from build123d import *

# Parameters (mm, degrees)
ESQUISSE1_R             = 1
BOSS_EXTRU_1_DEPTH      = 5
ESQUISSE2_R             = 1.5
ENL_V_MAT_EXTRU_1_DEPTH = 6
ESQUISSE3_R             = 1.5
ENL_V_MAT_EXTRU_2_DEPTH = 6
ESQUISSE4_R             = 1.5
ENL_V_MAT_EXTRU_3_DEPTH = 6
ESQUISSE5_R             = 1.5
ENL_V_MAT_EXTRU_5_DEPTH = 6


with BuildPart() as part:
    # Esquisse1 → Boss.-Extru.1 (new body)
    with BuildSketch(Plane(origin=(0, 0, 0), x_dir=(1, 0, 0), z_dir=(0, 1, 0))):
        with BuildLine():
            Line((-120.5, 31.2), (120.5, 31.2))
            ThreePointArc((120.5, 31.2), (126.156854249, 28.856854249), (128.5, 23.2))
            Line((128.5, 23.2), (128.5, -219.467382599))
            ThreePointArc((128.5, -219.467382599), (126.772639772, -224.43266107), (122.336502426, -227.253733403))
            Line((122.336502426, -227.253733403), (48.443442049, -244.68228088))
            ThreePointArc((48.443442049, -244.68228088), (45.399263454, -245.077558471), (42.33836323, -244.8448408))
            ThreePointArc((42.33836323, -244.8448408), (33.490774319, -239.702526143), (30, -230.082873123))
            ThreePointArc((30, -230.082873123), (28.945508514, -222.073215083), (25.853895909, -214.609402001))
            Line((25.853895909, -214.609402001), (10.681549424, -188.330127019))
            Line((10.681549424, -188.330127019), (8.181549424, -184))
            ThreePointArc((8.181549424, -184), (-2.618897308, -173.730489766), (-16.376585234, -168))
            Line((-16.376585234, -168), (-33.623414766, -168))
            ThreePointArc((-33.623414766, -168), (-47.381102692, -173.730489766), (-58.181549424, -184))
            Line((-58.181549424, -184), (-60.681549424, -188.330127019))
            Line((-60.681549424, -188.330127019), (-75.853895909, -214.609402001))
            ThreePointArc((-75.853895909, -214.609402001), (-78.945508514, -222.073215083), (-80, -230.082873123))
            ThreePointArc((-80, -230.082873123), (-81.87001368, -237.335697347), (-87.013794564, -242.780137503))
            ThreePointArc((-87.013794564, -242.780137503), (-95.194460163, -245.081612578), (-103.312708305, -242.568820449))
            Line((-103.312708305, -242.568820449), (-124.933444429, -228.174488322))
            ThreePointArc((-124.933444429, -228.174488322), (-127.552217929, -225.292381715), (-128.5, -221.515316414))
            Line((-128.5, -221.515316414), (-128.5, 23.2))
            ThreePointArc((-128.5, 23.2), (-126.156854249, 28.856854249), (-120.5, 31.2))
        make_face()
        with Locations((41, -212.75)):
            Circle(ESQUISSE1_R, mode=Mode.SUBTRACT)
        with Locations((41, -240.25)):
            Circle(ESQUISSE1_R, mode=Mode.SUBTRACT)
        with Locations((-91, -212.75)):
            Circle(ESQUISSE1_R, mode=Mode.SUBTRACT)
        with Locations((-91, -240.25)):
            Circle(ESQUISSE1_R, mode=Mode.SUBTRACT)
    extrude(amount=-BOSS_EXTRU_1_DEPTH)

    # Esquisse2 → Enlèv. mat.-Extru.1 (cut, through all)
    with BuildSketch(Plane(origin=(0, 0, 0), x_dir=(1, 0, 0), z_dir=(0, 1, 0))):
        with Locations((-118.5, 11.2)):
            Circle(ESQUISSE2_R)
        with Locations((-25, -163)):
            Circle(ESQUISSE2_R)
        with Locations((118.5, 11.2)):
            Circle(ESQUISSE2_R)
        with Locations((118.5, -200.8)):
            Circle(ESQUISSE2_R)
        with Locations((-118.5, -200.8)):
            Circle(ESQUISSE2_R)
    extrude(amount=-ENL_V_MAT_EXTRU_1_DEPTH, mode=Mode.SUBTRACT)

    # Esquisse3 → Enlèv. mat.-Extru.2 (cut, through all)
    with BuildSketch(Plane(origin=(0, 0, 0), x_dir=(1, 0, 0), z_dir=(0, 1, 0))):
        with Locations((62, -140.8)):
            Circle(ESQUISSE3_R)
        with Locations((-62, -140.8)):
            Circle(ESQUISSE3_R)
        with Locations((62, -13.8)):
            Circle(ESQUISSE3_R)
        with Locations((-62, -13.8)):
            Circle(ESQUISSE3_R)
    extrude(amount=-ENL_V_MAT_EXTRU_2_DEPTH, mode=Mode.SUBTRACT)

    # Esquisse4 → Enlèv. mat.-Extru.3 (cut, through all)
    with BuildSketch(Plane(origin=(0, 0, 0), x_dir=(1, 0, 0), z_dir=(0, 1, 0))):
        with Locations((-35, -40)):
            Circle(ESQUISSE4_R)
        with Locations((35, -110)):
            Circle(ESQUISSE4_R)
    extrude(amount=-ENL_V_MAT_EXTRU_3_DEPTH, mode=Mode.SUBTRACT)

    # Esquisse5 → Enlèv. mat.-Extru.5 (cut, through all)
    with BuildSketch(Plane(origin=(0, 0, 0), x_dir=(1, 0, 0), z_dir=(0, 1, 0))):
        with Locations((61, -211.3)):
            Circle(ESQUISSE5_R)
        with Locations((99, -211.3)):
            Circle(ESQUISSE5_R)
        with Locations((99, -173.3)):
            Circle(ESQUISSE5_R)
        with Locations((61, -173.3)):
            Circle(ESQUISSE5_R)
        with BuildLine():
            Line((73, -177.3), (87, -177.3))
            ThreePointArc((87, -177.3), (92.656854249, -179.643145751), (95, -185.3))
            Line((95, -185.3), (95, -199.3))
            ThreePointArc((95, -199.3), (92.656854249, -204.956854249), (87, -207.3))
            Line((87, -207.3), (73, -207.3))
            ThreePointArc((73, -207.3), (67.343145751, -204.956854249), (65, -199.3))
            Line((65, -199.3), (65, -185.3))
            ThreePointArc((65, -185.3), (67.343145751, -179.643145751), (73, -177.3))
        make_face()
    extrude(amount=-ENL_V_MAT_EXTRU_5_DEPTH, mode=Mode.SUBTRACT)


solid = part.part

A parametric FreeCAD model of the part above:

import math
import FreeCAD as App
import Part
import Sketcher

V = App.Vector
Q = App.Units.Quantity

doc = App.newDocument("Part")
params = doc.addObject("Spreadsheet::Sheet", "Params")
for row, (alias, value) in enumerate([
    ("sketch1_diameter", "2 mm"),
    ("sketch1_radius", "8 mm"),
    ("sketch1_radius2", "15 mm"),
    ("sketch1_radius3", "41 mm"),
    ("sketch1_width", "241 mm"),
    ("pad1_length", "5 mm"),
    ("sketch2_diameter", "3 mm"),
    ("sketch3_diameter", "3 mm"),
    ("sketch4_diameter", "3 mm"),
    ("sketch5_diameter", "3 mm"),
    ("sketch5_radius", "8 mm"),
    ("sketch5_width", "14 mm"),
], start=1):
    params.set(f"A{row}", alias)
    params.set(f"B{row}", "=" + value)
    params.setAlias(f"B{row}", alias)

body = doc.addObject("PartDesign::Body", "Body")

# Sketch on XZ plane
sketch1 = body.newObject("Sketcher::SketchObject", "Sketch")
sketch1.AttachmentSupport = (doc.getObject("XZ_Plane"), [""])
sketch1.MapMode = "FlatFace"
sketch1.addGeometry(Part.LineSegment(V(120.5, -31.2, 0), V(-120.5, -31.2, 0)), False)
sketch1.addGeometry(Part.ArcOfCircle(Part.Circle(V(-120.5, -23.2, 0), V(0, 0, 1), 8), math.radians(-180), math.radians(-90)), False)
sketch1.addGeometry(Part.LineSegment(V(-128.5, -23.2, 0), V(-128.5, 221.515316, 0)), False)
sketch1.addGeometry(Part.ArcOfCircle(Part.Circle(V(-120.5, 221.515316, 0), V(0, 0, 1), 8), math.radians(123.654292), math.radians(180)), False)
sketch1.addGeometry(Part.LineSegment(V(-124.933444, 228.174488, 0), V(-103.312708, 242.56882, 0)), False)
sketch1.addGeometry(Part.ArcOfCircle(Part.Circle(V(-95, 230.082873, 0), V(0, 0, 1), 15), math.radians(57.831316), math.radians(123.654292)), False)
sketch1.addGeometry(Part.ArcOfCircle(Part.Circle(V(-95, 230.082873, 0), V(0, 0, 1), 15), math.radians(0), math.radians(57.831316)), False)
sketch1.addGeometry(Part.ArcOfCircle(Part.Circle(V(-49.053058, 230.082873, 0), V(0, 0, 1), 30.946942), math.radians(-180), math.radians(-150)), False)
sketch1.addGeometry(Part.LineSegment(V(-75.853896, 214.609402, 0), V(-60.681549, 188.330127, 0)), False)
sketch1.addGeometry(Part.LineSegment(V(-60.681549, 188.330127, 0), V(-58.181549, 184, 0)), False)
sketch1.addGeometry(Part.ArcOfCircle(Part.Circle(V(-25, 208.082873, 0), V(0, 0, 1), 41), math.radians(-144.028189), math.radians(-102.141527)), False)
sketch1.addGeometry(Part.LineSegment(V(-33.623415, 168, 0), V(-16.376585, 168, 0)), False)
sketch1.addGeometry(Part.ArcOfCircle(Part.Circle(V(-25, 208.082873, 0), V(0, 0, 1), 41), math.radians(-77.858473), math.radians(-35.971811)), False)
sketch1.addGeometry(Part.LineSegment(V(8.181549, 184, 0), V(10.681549, 188.330127, 0)), False)
sketch1.addGeometry(Part.LineSegment(V(10.681549, 188.330127, 0), V(25.853896, 214.609402, 0)), False)
sketch1.addGeometry(Part.ArcOfCircle(Part.Circle(V(-0.946942, 230.082873, 0), V(0, 0, 1), 30.946942), math.radians(-30), math.radians(0)), False)
sketch1.addGeometry(Part.ArcOfCircle(Part.Circle(V(45, 230.082873, 0), V(0, 0, 1), 15), math.radians(100.220825), math.radians(180)), False)
sketch1.addGeometry(Part.ArcOfCircle(Part.Circle(V(45, 230.082873, 0), V(0, 0, 1), 15), math.radians(76.728666), math.radians(100.220825)), False)
sketch1.addGeometry(Part.LineSegment(V(48.443442, 244.682281, 0), V(122.336502, 227.253733, 0)), False)
sketch1.addGeometry(Part.ArcOfCircle(Part.Circle(V(120.5, 219.467383, 0), V(0, 0, 1), 8), math.radians(0), math.radians(76.728666)), False)
sketch1.addGeometry(Part.LineSegment(V(128.5, 219.467383, 0), V(128.5, -23.2, 0)), False)
sketch1.addGeometry(Part.ArcOfCircle(Part.Circle(V(120.5, -23.2, 0), V(0, 0, 1), 8), math.radians(-90), math.radians(0)), False)
sketch1.addGeometry(Part.Circle(V(41, 240.25, 0), V(0, 0, 1), 1), False)
sketch1.addGeometry(Part.Circle(V(-91, 240.25, 0), V(0, 0, 1), 1), False)
sketch1.addGeometry(Part.Circle(V(41, 212.75, 0), V(0, 0, 1), 1), False)
sketch1.addGeometry(Part.Circle(V(-91, 212.75, 0), V(0, 0, 1), 1), False)
sketch1.addConstraint(Sketcher.Constraint("Tangent", 0, 2, 1, 2))
sketch1.addConstraint(Sketcher.Constraint("Tangent", 1, 1, 2, 1))
sketch1.addConstraint(Sketcher.Constraint("Tangent", 2, 2, 3, 2))
sketch1.addConstraint(Sketcher.Constraint("Tangent", 3, 1, 4, 1))
sketch1.addConstraint(Sketcher.Constraint("Tangent", 4, 2, 5, 2))
sketch1.addConstraint(Sketcher.Constraint("Tangent", 5, 1, 6, 2))
sketch1.addConstraint(Sketcher.Constraint("Tangent", 6, 1, 7, 1))
sketch1.addConstraint(Sketcher.Constraint("Tangent", 7, 2, 8, 1))
sketch1.addConstraint(Sketcher.Constraint("Coincident", 8, 2, 9, 1))
sketch1.addConstraint(Sketcher.Constraint("Coincident", 9, 2, 10, 1))
sketch1.addConstraint(Sketcher.Constraint("Coincident", 10, 2, 11, 1))
sketch1.addConstraint(Sketcher.Constraint("Coincident", 11, 2, 12, 1))
sketch1.addConstraint(Sketcher.Constraint("Coincident", 12, 2, 13, 1))
sketch1.addConstraint(Sketcher.Constraint("Coincident", 13, 2, 14, 1))
sketch1.addConstraint(Sketcher.Constraint("Tangent", 14, 2, 15, 1))
sketch1.addConstraint(Sketcher.Constraint("Tangent", 15, 2, 16, 2))
sketch1.addConstraint(Sketcher.Constraint("Tangent", 16, 1, 17, 2))
sketch1.addConstraint(Sketcher.Constraint("Tangent", 17, 1, 18, 1))
sketch1.addConstraint(Sketcher.Constraint("Tangent", 18, 2, 19, 2))
sketch1.addConstraint(Sketcher.Constraint("Tangent", 19, 1, 20, 1))
sketch1.addConstraint(Sketcher.Constraint("Tangent", 20, 2, 21, 2))
sketch1.addConstraint(Sketcher.Constraint("Tangent", 21, 1, 0, 1))
sketch1.addConstraint(Sketcher.Constraint("Horizontal", 0))
sketch1.addConstraint(Sketcher.Constraint("Vertical", 2))
sketch1.addConstraint(Sketcher.Constraint("Horizontal", 11))
sketch1.addConstraint(Sketcher.Constraint("Vertical", 20))
sketch1.addConstraint(Sketcher.Constraint("Coincident", 12, 3, 10, 3))
sketch1.addConstraint(Sketcher.Constraint("Equal", 1, 3))
sketch1.addConstraint(Sketcher.Constraint("Equal", 5, 6))
sketch1.addConstraint(Sketcher.Constraint("Equal", 10, 12))
sketch1.addConstraint(Sketcher.Constraint("Equal", 7, 15))
sketch1.addConstraint(Sketcher.Constraint("Equal", 6, 16))
sketch1.addConstraint(Sketcher.Constraint("Equal", 16, 17))
sketch1.addConstraint(Sketcher.Constraint("Equal", 3, 19))
sketch1.addConstraint(Sketcher.Constraint("Equal", 19, 21))
sketch1.addConstraint(Sketcher.Constraint("Equal", 22, 23))
sketch1.addConstraint(Sketcher.Constraint("Equal", 23, 24))
sketch1.addConstraint(Sketcher.Constraint("Equal", 24, 25))
sketch1.addConstraint(Sketcher.Constraint("Parallel", 8, 9))
sketch1.addConstraint(Sketcher.Constraint("Parallel", 13, 14))
sketch1.addConstraint(Sketcher.Constraint("Horizontal", 6, 3, 7, 3))
sketch1.addConstraint(Sketcher.Constraint("Horizontal", 7, 3, 15, 3))
sketch1.addConstraint(Sketcher.Constraint("Horizontal", 15, 3, 16, 3))
sketch1.addConstraint(Sketcher.Constraint("Horizontal", 22, 3, 23, 3))
sketch1.addConstraint(Sketcher.Constraint("Horizontal", 24, 3, 25, 3))
sketch1.addConstraint(Sketcher.Constraint("Horizontal", 9, 2, 12, 2))
sketch1.addConstraint(Sketcher.Constraint("Horizontal", 8, 2, 13, 2))
sketch1.addConstraint(Sketcher.Constraint("Horizontal", 7, 2, 14, 2))
sketch1.addConstraint(Sketcher.Constraint("Vertical", 22, 3, 24, 3))
sketch1.addConstraint(Sketcher.Constraint("Vertical", 23, 3, 25, 3))
sketch1.addConstraint(Sketcher.Constraint("Diameter", 22, Q("2 mm")))
sketch1.addConstraint(Sketcher.Constraint("Radius", 1, Q("8 mm")))
sketch1.addConstraint(Sketcher.Constraint("Radius", 5, Q("15 mm")))
sketch1.addConstraint(Sketcher.Constraint("Radius", 10, Q("41 mm")))
sketch1.addConstraint(Sketcher.Constraint("DistanceX", 0, 2, 0, 1, Q("241 mm")))
sketch1.addConstraint(Sketcher.Constraint("Angle", 8, Q("-60 deg")))
sketch1.addConstraint(Sketcher.Constraint("Distance", 9, Q("5 mm")))
sketch1.addConstraint(Sketcher.Constraint("DistanceX", 5, 3, -1, 1, Q("95 mm")))
sketch1.addConstraint(Sketcher.Constraint("DistanceX", 10, 3, -1, 1, Q("25 mm")))
sketch1.addConstraint(Sketcher.Constraint("DistanceX", -1, 1, 22, 3, Q("41 mm")))
sketch1.addConstraint(Sketcher.Constraint("DistanceX", 23, 3, -1, 1, Q("91 mm")))
sketch1.addConstraint(Sketcher.Constraint("DistanceY", -1, 1, 9, 2, Q("184 mm")))
sketch1.addConstraint(Sketcher.Constraint("DistanceY", -1, 1, 10, 2, Q("168 mm")))
sketch1.addConstraint(Sketcher.Constraint("DistanceY", 10, 3, 7, 3, Q("22 mm")))
sketch1.addConstraint(Sketcher.Constraint("DistanceX", 1, 3, -1, 1, Q("120.5 mm")))
sketch1.addConstraint(Sketcher.Constraint("DistanceY", 1, 3, -1, 1, Q("23.2 mm")))
sketch1.addConstraint(Sketcher.Constraint("DistanceY", 24, 3, 22, 3, Q("27.5 mm")))
sketch1.addConstraint(Sketcher.Constraint("DistanceY", -1, 1, 22, 3, Q("240.25 mm")))
sketch1.addConstraint(Sketcher.Constraint("Radius", 7, Q("30.946942 mm")))
sketch1.addConstraint(Sketcher.Constraint("DistanceY", 19, 1, 17, 1, Q("25.214898 mm")))
sketch1.addConstraint(Sketcher.Constraint("DistanceY", 2, 1, 2, 2, Q("244.715316 mm")))
sketch1.addConstraint(Sketcher.Constraint("DistanceY", -1, 1, 16, 1, Q("244.844841 mm")))
sketch1.addConstraint(Sketcher.Constraint("DistanceX", 5, 1, -1, 1, Q("87.013795 mm")))
sketch1.setExpression("Constraints[50]", "Params.sketch1_diameter")
sketch1.setExpression("Constraints[51]", "Params.sketch1_radius")
sketch1.setExpression("Constraints[52]", "Params.sketch1_radius2")
sketch1.setExpression("Constraints[53]", "Params.sketch1_radius3")
sketch1.setExpression("Constraints[54]", "Params.sketch1_width")
pad1 = body.newObject("PartDesign::Pad", "Pad")
pad1.Profile = sketch1
pad1.setExpression("Length", "Params.pad1_length")

# Sketch on XZ plane
sketch2 = body.newObject("Sketcher::SketchObject", "Sketch001")
sketch2.AttachmentSupport = (doc.getObject("XZ_Plane"), [""])
sketch2.MapMode = "FlatFace"
sketch2.addGeometry(Part.Circle(V(-118.5, -11.2, 0), V(0, 0, 1), 1.5), False)
sketch2.addGeometry(Part.Circle(V(-25, 163, 0), V(0, 0, 1), 1.5), False)
sketch2.addGeometry(Part.Circle(V(118.5, -11.2, 0), V(0, 0, 1), 1.5), False)
sketch2.addGeometry(Part.Circle(V(118.5, 200.8, 0), V(0, 0, 1), 1.5), False)
sketch2.addGeometry(Part.Circle(V(-118.5, 200.8, 0), V(0, 0, 1), 1.5), False)
sketch2.addConstraint(Sketcher.Constraint("Equal", 0, 1))
sketch2.addConstraint(Sketcher.Constraint("Equal", 1, 2))
sketch2.addConstraint(Sketcher.Constraint("Equal", 2, 3))
sketch2.addConstraint(Sketcher.Constraint("Equal", 3, 4))
sketch2.addConstraint(Sketcher.Constraint("Symmetric", 0, 3, 2, 3, -2))
sketch2.addConstraint(Sketcher.Constraint("Symmetric", 3, 3, 4, 3, -2))
sketch2.addConstraint(Sketcher.Constraint("Vertical", 2, 3, 3, 3))
sketch2.addConstraint(Sketcher.Constraint("Diameter", 0, Q("3 mm")))
sketch2.addConstraint(Sketcher.Constraint("DistanceX", 1, 3, -1, 1, Q("25 mm")))
sketch2.addConstraint(Sketcher.Constraint("DistanceY", -1, 1, 1, 3, Q("163 mm")))
sketch2.addConstraint(Sketcher.Constraint("DistanceX", 0, 3, 2, 3, Q("237 mm")))
sketch2.addConstraint(Sketcher.Constraint("DistanceY", 2, 3, 3, 3, Q("212 mm")))
sketch2.addConstraint(Sketcher.Constraint("DistanceY", 0, 3, -1, 1, Q("11.2 mm")))
sketch2.setExpression("Constraints[7]", "Params.sketch2_diameter")
pocket1 = body.newObject("PartDesign::Pocket", "Pocket")
pocket1.Profile = sketch2
pocket1.Type = "ThroughAll"
pocket1.Reversed = True

# Sketch on XZ plane
sketch3 = body.newObject("Sketcher::SketchObject", "Sketch002")
sketch3.AttachmentSupport = (doc.getObject("XZ_Plane"), [""])
sketch3.MapMode = "FlatFace"
sketch3.addGeometry(Part.Circle(V(62, 140.8, 0), V(0, 0, 1), 1.5), False)
sketch3.addGeometry(Part.Circle(V(-62, 140.8, 0), V(0, 0, 1), 1.5), False)
sketch3.addGeometry(Part.Circle(V(62, 13.8, 0), V(0, 0, 1), 1.5), False)
sketch3.addGeometry(Part.Circle(V(-62, 13.8, 0), V(0, 0, 1), 1.5), False)
sketch3.addConstraint(Sketcher.Constraint("Equal", 0, 1))
sketch3.addConstraint(Sketcher.Constraint("Equal", 1, 2))
sketch3.addConstraint(Sketcher.Constraint("Equal", 2, 3))
sketch3.addConstraint(Sketcher.Constraint("Symmetric", 0, 3, 1, 3, -2))
sketch3.addConstraint(Sketcher.Constraint("Symmetric", 2, 3, 3, 3, -2))
sketch3.addConstraint(Sketcher.Constraint("Vertical", 0, 3, 2, 3))
sketch3.addConstraint(Sketcher.Constraint("Diameter", 0, Q("3 mm")))
sketch3.addConstraint(Sketcher.Constraint("DistanceX", -1, 1, 0, 3, Q("62 mm")))
sketch3.addConstraint(Sketcher.Constraint("DistanceY", 2, 3, 0, 3, Q("127 mm")))
sketch3.addConstraint(Sketcher.Constraint("DistanceY", -1, 1, 0, 3, Q("140.8 mm")))
sketch3.setExpression("Constraints[6]", "Params.sketch3_diameter")
pocket2 = body.newObject("PartDesign::Pocket", "Pocket001")
pocket2.Profile = sketch3
pocket2.Type = "ThroughAll"
pocket2.Reversed = True

# Sketch on XZ plane
sketch4 = body.newObject("Sketcher::SketchObject", "Sketch003")
sketch4.AttachmentSupport = (doc.getObject("XZ_Plane"), [""])
sketch4.MapMode = "FlatFace"
sketch4.addGeometry(Part.Circle(V(-35, 40, 0), V(0, 0, 1), 1.5), False)
sketch4.addGeometry(Part.Circle(V(35, 110, 0), V(0, 0, 1), 1.5), False)
sketch4.addConstraint(Sketcher.Constraint("Equal", 0, 1))
sketch4.addConstraint(Sketcher.Constraint("Diameter", 0, Q("3 mm")))
sketch4.addConstraint(Sketcher.Constraint("DistanceX", 0, 3, -1, 1, Q("35 mm")))
sketch4.addConstraint(Sketcher.Constraint("DistanceY", -1, 1, 0, 3, Q("40 mm")))
sketch4.addConstraint(Sketcher.Constraint("DistanceX", -1, 1, 1, 3, Q("35 mm")))
sketch4.addConstraint(Sketcher.Constraint("DistanceY", -1, 1, 1, 3, Q("110 mm")))
sketch4.setExpression("Constraints[1]", "Params.sketch4_diameter")
pocket3 = body.newObject("PartDesign::Pocket", "Pocket002")
pocket3.Profile = sketch4
pocket3.Type = "ThroughAll"
pocket3.Reversed = True

# Sketch on XZ plane
sketch5 = body.newObject("Sketcher::SketchObject", "Sketch004")
sketch5.AttachmentSupport = (doc.getObject("XZ_Plane"), [""])
sketch5.MapMode = "FlatFace"
sketch5.addGeometry(Part.Circle(V(61, 211.3, 0), V(0, 0, 1), 1.5), False)
sketch5.addGeometry(Part.Circle(V(99, 211.3, 0), V(0, 0, 1), 1.5), False)
sketch5.addGeometry(Part.Circle(V(99, 173.3, 0), V(0, 0, 1), 1.5), False)
sketch5.addGeometry(Part.Circle(V(61, 173.3, 0), V(0, 0, 1), 1.5), False)
sketch5.addGeometry(Part.LineSegment(V(87, 177.3, 0), V(73, 177.3, 0)), False)
sketch5.addGeometry(Part.ArcOfCircle(Part.Circle(V(73, 185.3, 0), V(0, 0, 1), 8), math.radians(-180), math.radians(-90)), False)
sketch5.addGeometry(Part.LineSegment(V(65, 185.3, 0), V(65, 199.3, 0)), False)
sketch5.addGeometry(Part.ArcOfCircle(Part.Circle(V(73, 199.3, 0), V(0, 0, 1), 8), math.radians(90), math.radians(180)), False)
sketch5.addGeometry(Part.LineSegment(V(73, 207.3, 0), V(87, 207.3, 0)), False)
sketch5.addGeometry(Part.ArcOfCircle(Part.Circle(V(87, 199.3, 0), V(0, 0, 1), 8), math.radians(0), math.radians(90)), False)
sketch5.addGeometry(Part.LineSegment(V(95, 199.3, 0), V(95, 185.3, 0)), False)
sketch5.addGeometry(Part.ArcOfCircle(Part.Circle(V(87, 185.3, 0), V(0, 0, 1), 8), math.radians(-90), math.radians(0)), False)
sketch5.addConstraint(Sketcher.Constraint("Tangent", 4, 2, 5, 2))
sketch5.addConstraint(Sketcher.Constraint("Tangent", 5, 1, 6, 1))
sketch5.addConstraint(Sketcher.Constraint("Tangent", 6, 2, 7, 2))
sketch5.addConstraint(Sketcher.Constraint("Tangent", 7, 1, 8, 1))
sketch5.addConstraint(Sketcher.Constraint("Tangent", 8, 2, 9, 2))
sketch5.addConstraint(Sketcher.Constraint("Tangent", 9, 1, 10, 1))
sketch5.addConstraint(Sketcher.Constraint("Tangent", 10, 2, 11, 2))
sketch5.addConstraint(Sketcher.Constraint("Tangent", 11, 1, 4, 1))
sketch5.addConstraint(Sketcher.Constraint("Horizontal", 4))
sketch5.addConstraint(Sketcher.Constraint("Vertical", 6))
sketch5.addConstraint(Sketcher.Constraint("Horizontal", 8))
sketch5.addConstraint(Sketcher.Constraint("Vertical", 10))
sketch5.addConstraint(Sketcher.Constraint("Equal", 0, 1))
sketch5.addConstraint(Sketcher.Constraint("Equal", 1, 2))
sketch5.addConstraint(Sketcher.Constraint("Equal", 2, 3))
sketch5.addConstraint(Sketcher.Constraint("Equal", 5, 7))
sketch5.addConstraint(Sketcher.Constraint("Equal", 7, 9))
sketch5.addConstraint(Sketcher.Constraint("Equal", 9, 11))
sketch5.addConstraint(Sketcher.Constraint("Horizontal", 0, 3, 1, 3))
sketch5.addConstraint(Sketcher.Constraint("Horizontal", 2, 3, 3, 3))
sketch5.addConstraint(Sketcher.Constraint("Vertical", 1, 3, 2, 3))
sketch5.addConstraint(Sketcher.Constraint("Vertical", 0, 3, 3, 3))
sketch5.addConstraint(Sketcher.Constraint("Equal", 8, 6))
sketch5.addConstraint(Sketcher.Constraint("Diameter", 0, Q("3 mm")))
sketch5.addConstraint(Sketcher.Constraint("Radius", 5, Q("8 mm")))
sketch5.addConstraint(Sketcher.Constraint("DistanceX", 4, 2, 4, 1, Q("14 mm")))
sketch5.addConstraint(Sketcher.Constraint("DistanceX", -1, 1, 0, 3, Q("61 mm")))
sketch5.addConstraint(Sketcher.Constraint("DistanceX", -1, 1, 1, 3, Q("99 mm")))
sketch5.addConstraint(Sketcher.Constraint("DistanceX", -1, 1, 5, 3, Q("73 mm")))
sketch5.addConstraint(Sketcher.Constraint("DistanceY", 2, 3, 1, 3, Q("38 mm")))
sketch5.addConstraint(Sketcher.Constraint("DistanceY", 3, 3, 5, 3, Q("12 mm")))
sketch5.addConstraint(Sketcher.Constraint("DistanceY", -1, 1, 0, 3, Q("211.3 mm")))
sketch5.setExpression("Constraints[23]", "Params.sketch5_diameter")
sketch5.setExpression("Constraints[24]", "Params.sketch5_radius")
sketch5.setExpression("Constraints[25]", "Params.sketch5_width")
pocket4 = body.newObject("PartDesign::Pocket", "Pocket003")
pocket4.Profile = sketch5
pocket4.Type = "ThroughAll"
pocket4.Reversed = True

doc.recompute()
